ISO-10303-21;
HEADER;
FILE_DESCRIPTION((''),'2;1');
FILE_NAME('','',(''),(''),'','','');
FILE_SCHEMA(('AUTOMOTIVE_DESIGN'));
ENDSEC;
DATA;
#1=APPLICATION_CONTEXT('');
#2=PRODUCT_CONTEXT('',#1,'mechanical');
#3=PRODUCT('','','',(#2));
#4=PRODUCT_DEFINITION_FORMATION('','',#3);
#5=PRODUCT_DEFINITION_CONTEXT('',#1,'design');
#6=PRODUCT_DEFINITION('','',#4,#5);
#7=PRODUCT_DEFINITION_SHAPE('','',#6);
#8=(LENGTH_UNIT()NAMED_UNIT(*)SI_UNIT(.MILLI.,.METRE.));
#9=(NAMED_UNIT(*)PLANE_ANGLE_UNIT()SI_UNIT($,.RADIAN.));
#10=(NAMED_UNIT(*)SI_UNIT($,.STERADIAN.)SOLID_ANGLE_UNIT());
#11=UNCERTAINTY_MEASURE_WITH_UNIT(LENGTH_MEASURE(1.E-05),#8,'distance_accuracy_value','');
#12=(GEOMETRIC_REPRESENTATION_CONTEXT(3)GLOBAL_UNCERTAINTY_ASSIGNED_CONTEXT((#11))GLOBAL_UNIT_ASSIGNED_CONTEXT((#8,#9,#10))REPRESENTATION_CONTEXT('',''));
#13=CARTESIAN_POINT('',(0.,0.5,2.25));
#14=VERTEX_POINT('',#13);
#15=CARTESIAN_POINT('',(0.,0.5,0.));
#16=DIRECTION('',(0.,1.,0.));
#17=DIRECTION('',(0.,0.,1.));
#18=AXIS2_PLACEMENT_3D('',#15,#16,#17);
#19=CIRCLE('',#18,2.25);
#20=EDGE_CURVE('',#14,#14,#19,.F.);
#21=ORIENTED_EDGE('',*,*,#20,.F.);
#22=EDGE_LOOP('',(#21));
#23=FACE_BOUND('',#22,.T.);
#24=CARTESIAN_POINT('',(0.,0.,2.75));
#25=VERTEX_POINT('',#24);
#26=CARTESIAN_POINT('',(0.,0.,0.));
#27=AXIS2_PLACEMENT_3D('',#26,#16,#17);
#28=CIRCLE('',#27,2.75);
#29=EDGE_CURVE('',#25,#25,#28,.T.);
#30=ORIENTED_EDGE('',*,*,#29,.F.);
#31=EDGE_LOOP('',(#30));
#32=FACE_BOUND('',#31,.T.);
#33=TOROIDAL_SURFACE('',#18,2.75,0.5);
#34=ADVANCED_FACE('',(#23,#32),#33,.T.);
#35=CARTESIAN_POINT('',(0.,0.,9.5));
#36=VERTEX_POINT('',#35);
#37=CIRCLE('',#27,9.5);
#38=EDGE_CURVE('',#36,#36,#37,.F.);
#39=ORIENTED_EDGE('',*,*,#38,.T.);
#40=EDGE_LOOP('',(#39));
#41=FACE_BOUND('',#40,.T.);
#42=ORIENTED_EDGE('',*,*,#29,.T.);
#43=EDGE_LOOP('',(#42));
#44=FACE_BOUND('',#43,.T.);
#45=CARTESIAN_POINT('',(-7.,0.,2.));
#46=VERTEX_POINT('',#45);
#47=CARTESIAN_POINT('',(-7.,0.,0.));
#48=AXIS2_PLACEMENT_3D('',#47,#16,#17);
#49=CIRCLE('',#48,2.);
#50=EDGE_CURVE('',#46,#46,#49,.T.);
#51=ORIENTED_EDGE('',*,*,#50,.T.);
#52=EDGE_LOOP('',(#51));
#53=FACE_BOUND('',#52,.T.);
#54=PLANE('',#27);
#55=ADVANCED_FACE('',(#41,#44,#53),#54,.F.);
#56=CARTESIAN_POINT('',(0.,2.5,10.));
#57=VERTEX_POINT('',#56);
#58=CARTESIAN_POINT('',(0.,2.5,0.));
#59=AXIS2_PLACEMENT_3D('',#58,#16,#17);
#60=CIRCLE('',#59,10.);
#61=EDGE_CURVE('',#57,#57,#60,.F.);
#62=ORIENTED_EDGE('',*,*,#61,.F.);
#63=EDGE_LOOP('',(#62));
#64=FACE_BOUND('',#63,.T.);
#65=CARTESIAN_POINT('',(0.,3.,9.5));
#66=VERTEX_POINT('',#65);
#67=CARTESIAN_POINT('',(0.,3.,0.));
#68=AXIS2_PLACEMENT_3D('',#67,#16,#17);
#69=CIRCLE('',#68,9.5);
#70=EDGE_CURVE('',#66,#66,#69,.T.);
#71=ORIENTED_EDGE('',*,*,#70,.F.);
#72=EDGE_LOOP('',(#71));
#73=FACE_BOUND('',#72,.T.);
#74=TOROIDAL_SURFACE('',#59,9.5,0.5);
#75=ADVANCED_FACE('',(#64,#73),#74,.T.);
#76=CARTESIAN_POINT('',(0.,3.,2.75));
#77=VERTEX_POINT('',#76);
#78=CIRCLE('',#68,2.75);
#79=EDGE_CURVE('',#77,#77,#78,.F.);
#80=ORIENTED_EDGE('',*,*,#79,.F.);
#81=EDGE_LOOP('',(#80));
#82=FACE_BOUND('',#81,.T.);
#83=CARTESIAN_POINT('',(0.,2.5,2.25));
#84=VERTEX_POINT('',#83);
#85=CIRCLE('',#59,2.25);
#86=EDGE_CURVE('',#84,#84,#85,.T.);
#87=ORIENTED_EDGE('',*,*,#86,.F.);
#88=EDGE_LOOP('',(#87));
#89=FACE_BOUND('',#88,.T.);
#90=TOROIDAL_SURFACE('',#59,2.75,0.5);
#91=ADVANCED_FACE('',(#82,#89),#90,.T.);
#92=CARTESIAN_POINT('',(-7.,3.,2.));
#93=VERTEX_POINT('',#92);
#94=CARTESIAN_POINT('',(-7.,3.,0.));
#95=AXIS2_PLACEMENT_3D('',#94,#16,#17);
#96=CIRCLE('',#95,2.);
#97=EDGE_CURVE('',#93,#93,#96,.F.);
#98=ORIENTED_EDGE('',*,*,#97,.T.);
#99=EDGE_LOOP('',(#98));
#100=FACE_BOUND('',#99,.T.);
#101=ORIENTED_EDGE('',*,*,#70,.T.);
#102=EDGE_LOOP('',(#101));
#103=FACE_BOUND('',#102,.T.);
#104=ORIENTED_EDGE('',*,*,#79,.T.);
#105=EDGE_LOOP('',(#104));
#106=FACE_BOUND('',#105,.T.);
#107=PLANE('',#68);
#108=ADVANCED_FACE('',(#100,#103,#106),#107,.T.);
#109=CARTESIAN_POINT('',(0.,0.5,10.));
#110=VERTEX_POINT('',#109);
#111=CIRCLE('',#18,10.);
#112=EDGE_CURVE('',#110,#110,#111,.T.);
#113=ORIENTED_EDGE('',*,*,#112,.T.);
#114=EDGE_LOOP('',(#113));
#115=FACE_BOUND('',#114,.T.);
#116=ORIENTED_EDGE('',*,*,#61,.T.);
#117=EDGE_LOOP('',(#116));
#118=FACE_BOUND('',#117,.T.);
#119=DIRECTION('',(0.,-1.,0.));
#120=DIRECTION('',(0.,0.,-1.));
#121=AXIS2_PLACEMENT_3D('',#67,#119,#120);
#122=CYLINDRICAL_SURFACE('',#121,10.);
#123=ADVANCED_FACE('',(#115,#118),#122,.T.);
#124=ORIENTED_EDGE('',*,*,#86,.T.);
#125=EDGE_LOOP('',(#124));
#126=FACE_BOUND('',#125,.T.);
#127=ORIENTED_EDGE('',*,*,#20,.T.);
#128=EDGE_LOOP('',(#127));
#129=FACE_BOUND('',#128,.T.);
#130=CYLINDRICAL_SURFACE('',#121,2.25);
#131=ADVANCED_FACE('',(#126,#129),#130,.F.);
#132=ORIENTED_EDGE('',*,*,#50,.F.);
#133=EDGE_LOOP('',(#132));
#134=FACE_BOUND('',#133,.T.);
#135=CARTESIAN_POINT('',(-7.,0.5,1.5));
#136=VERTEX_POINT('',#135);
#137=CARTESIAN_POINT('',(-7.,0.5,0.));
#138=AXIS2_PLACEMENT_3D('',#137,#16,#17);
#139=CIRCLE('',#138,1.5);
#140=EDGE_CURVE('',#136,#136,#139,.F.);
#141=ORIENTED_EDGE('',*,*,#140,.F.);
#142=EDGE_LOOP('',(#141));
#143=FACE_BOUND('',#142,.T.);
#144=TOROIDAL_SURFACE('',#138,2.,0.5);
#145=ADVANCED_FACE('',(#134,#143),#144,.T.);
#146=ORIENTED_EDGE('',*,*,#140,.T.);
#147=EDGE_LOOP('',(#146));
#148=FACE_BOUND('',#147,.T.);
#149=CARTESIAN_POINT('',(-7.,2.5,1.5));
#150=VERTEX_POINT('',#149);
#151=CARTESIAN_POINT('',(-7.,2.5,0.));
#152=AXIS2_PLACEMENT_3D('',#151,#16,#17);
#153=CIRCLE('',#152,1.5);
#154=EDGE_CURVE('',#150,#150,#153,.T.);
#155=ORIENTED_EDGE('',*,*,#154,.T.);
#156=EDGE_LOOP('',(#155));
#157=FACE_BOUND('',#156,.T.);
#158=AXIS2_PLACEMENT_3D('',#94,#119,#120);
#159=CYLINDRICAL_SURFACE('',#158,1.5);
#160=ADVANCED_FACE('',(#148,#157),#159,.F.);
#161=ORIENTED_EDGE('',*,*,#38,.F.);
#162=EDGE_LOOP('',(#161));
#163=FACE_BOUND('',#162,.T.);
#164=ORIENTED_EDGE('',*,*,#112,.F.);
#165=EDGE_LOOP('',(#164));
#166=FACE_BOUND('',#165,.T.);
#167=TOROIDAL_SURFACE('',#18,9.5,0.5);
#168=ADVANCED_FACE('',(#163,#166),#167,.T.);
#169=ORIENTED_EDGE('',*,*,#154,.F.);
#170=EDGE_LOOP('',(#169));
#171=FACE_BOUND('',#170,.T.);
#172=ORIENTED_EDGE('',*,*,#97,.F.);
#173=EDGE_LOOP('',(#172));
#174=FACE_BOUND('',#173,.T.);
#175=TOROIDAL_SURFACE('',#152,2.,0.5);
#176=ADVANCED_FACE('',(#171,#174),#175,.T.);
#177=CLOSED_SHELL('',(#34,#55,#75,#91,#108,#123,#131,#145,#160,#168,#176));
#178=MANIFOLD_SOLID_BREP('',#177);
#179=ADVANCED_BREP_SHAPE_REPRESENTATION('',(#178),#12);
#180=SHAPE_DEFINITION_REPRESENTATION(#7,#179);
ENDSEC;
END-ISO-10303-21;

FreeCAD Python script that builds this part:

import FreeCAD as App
import Part
import Sketcher
from FreeCAD import Vector
Q = App.Units.Quantity


def edges_at(feature, points):
    """Names of the edges that pass closest to the given points."""
    edges = feature.Shape.Edges
    near = lambda p: min(range(len(edges)), key=lambda i: edges[i].distToShape(Part.Vertex(*p))[0])
    return sorted({f"Edge{near(p) + 1}" for p in points})

doc = App.newDocument("Part")
params = doc.addObject("Spreadsheet::Sheet", "Params")
for row, (alias, value) in enumerate([
    ("sketch1_diameter", "20 mm"),
    ("sketch1_diameter2", "3 mm"),
    ("sketch1_diameter3", "4.5 mm"),
    ("pad1_length", "3 mm"),
    ("fillet_radius", "0.5 mm"),
], start=1):
    params.set(f"A{row}", alias)
    params.set(f"B{row}", "=" + value)
    params.setAlias(f"B{row}", alias)

body = doc.addObject("PartDesign::Body", "Body")

# Sketch on XZ plane
sketch1 = doc.addObject("Sketcher::SketchObject", "Sketch")
body.addObject(sketch1)
sketch1.AttachmentSupport = (doc.XZ_Plane, [""])
sketch1.MapMode = "FlatFace"
sketch1.addGeometry(Part.Circle(Vector(0, 0, 0), Vector(0, 0, 1), 10), False)
sketch1.addGeometry(Part.Circle(Vector(-7, 0, 0), Vector(0, 0, 1), 1.5), False)
sketch1.addGeometry(Part.Circle(Vector(0, 0, 0), Vector(0, 0, 1), 2.2), False)
sketch1.addConstraint(Sketcher.Constraint("Coincident", 0, 3, -1, 1))
sketch1.addConstraint(Sketcher.Constraint("Coincident", 2, 3, -1, 1))
sketch1.addConstraint(Sketcher.Constraint("PointOnObject", 1, 3, -1))
sketch1.addConstraint(Sketcher.Constraint("Diameter", 0, Q("20 mm")))
sketch1.addConstraint(Sketcher.Constraint("Diameter", 1, Q("3 mm")))
sketch1.addConstraint(Sketcher.Constraint("Diameter", 2, Q("4.5 mm")))
sketch1.addConstraint(Sketcher.Constraint("DistanceX", 1, 3, -1, 1, Q("7 mm")))
sketch1.setExpression("Constraints[3]", "Params.sketch1_diameter")
sketch1.setExpression("Constraints[4]", "Params.sketch1_diameter2")
sketch1.setExpression("Constraints[5]", "Params.sketch1_diameter3")
pad1 = doc.addObject("PartDesign::Pad", "Pad")
body.addObject(pad1)
pad1.Profile = sketch1
pad1.setExpression("Length", "Params.pad1_length")
pad1.Reversed = True
doc.recompute()

fillet = doc.addObject("PartDesign::Fillet", "Fillet")
body.addObject(fillet)
fillet.Base = (pad1, edges_at(pad1, [
    (0, 0, -10),
    (0, 3, -10),
    (0, 0, -2.25),
    (0, 3, -2.25),
    (-7, 0, -1.5),
    (-7, 3, -1.5),
]))
fillet.setExpression("Radius", "Params.fillet_radius")

doc.recompute()
